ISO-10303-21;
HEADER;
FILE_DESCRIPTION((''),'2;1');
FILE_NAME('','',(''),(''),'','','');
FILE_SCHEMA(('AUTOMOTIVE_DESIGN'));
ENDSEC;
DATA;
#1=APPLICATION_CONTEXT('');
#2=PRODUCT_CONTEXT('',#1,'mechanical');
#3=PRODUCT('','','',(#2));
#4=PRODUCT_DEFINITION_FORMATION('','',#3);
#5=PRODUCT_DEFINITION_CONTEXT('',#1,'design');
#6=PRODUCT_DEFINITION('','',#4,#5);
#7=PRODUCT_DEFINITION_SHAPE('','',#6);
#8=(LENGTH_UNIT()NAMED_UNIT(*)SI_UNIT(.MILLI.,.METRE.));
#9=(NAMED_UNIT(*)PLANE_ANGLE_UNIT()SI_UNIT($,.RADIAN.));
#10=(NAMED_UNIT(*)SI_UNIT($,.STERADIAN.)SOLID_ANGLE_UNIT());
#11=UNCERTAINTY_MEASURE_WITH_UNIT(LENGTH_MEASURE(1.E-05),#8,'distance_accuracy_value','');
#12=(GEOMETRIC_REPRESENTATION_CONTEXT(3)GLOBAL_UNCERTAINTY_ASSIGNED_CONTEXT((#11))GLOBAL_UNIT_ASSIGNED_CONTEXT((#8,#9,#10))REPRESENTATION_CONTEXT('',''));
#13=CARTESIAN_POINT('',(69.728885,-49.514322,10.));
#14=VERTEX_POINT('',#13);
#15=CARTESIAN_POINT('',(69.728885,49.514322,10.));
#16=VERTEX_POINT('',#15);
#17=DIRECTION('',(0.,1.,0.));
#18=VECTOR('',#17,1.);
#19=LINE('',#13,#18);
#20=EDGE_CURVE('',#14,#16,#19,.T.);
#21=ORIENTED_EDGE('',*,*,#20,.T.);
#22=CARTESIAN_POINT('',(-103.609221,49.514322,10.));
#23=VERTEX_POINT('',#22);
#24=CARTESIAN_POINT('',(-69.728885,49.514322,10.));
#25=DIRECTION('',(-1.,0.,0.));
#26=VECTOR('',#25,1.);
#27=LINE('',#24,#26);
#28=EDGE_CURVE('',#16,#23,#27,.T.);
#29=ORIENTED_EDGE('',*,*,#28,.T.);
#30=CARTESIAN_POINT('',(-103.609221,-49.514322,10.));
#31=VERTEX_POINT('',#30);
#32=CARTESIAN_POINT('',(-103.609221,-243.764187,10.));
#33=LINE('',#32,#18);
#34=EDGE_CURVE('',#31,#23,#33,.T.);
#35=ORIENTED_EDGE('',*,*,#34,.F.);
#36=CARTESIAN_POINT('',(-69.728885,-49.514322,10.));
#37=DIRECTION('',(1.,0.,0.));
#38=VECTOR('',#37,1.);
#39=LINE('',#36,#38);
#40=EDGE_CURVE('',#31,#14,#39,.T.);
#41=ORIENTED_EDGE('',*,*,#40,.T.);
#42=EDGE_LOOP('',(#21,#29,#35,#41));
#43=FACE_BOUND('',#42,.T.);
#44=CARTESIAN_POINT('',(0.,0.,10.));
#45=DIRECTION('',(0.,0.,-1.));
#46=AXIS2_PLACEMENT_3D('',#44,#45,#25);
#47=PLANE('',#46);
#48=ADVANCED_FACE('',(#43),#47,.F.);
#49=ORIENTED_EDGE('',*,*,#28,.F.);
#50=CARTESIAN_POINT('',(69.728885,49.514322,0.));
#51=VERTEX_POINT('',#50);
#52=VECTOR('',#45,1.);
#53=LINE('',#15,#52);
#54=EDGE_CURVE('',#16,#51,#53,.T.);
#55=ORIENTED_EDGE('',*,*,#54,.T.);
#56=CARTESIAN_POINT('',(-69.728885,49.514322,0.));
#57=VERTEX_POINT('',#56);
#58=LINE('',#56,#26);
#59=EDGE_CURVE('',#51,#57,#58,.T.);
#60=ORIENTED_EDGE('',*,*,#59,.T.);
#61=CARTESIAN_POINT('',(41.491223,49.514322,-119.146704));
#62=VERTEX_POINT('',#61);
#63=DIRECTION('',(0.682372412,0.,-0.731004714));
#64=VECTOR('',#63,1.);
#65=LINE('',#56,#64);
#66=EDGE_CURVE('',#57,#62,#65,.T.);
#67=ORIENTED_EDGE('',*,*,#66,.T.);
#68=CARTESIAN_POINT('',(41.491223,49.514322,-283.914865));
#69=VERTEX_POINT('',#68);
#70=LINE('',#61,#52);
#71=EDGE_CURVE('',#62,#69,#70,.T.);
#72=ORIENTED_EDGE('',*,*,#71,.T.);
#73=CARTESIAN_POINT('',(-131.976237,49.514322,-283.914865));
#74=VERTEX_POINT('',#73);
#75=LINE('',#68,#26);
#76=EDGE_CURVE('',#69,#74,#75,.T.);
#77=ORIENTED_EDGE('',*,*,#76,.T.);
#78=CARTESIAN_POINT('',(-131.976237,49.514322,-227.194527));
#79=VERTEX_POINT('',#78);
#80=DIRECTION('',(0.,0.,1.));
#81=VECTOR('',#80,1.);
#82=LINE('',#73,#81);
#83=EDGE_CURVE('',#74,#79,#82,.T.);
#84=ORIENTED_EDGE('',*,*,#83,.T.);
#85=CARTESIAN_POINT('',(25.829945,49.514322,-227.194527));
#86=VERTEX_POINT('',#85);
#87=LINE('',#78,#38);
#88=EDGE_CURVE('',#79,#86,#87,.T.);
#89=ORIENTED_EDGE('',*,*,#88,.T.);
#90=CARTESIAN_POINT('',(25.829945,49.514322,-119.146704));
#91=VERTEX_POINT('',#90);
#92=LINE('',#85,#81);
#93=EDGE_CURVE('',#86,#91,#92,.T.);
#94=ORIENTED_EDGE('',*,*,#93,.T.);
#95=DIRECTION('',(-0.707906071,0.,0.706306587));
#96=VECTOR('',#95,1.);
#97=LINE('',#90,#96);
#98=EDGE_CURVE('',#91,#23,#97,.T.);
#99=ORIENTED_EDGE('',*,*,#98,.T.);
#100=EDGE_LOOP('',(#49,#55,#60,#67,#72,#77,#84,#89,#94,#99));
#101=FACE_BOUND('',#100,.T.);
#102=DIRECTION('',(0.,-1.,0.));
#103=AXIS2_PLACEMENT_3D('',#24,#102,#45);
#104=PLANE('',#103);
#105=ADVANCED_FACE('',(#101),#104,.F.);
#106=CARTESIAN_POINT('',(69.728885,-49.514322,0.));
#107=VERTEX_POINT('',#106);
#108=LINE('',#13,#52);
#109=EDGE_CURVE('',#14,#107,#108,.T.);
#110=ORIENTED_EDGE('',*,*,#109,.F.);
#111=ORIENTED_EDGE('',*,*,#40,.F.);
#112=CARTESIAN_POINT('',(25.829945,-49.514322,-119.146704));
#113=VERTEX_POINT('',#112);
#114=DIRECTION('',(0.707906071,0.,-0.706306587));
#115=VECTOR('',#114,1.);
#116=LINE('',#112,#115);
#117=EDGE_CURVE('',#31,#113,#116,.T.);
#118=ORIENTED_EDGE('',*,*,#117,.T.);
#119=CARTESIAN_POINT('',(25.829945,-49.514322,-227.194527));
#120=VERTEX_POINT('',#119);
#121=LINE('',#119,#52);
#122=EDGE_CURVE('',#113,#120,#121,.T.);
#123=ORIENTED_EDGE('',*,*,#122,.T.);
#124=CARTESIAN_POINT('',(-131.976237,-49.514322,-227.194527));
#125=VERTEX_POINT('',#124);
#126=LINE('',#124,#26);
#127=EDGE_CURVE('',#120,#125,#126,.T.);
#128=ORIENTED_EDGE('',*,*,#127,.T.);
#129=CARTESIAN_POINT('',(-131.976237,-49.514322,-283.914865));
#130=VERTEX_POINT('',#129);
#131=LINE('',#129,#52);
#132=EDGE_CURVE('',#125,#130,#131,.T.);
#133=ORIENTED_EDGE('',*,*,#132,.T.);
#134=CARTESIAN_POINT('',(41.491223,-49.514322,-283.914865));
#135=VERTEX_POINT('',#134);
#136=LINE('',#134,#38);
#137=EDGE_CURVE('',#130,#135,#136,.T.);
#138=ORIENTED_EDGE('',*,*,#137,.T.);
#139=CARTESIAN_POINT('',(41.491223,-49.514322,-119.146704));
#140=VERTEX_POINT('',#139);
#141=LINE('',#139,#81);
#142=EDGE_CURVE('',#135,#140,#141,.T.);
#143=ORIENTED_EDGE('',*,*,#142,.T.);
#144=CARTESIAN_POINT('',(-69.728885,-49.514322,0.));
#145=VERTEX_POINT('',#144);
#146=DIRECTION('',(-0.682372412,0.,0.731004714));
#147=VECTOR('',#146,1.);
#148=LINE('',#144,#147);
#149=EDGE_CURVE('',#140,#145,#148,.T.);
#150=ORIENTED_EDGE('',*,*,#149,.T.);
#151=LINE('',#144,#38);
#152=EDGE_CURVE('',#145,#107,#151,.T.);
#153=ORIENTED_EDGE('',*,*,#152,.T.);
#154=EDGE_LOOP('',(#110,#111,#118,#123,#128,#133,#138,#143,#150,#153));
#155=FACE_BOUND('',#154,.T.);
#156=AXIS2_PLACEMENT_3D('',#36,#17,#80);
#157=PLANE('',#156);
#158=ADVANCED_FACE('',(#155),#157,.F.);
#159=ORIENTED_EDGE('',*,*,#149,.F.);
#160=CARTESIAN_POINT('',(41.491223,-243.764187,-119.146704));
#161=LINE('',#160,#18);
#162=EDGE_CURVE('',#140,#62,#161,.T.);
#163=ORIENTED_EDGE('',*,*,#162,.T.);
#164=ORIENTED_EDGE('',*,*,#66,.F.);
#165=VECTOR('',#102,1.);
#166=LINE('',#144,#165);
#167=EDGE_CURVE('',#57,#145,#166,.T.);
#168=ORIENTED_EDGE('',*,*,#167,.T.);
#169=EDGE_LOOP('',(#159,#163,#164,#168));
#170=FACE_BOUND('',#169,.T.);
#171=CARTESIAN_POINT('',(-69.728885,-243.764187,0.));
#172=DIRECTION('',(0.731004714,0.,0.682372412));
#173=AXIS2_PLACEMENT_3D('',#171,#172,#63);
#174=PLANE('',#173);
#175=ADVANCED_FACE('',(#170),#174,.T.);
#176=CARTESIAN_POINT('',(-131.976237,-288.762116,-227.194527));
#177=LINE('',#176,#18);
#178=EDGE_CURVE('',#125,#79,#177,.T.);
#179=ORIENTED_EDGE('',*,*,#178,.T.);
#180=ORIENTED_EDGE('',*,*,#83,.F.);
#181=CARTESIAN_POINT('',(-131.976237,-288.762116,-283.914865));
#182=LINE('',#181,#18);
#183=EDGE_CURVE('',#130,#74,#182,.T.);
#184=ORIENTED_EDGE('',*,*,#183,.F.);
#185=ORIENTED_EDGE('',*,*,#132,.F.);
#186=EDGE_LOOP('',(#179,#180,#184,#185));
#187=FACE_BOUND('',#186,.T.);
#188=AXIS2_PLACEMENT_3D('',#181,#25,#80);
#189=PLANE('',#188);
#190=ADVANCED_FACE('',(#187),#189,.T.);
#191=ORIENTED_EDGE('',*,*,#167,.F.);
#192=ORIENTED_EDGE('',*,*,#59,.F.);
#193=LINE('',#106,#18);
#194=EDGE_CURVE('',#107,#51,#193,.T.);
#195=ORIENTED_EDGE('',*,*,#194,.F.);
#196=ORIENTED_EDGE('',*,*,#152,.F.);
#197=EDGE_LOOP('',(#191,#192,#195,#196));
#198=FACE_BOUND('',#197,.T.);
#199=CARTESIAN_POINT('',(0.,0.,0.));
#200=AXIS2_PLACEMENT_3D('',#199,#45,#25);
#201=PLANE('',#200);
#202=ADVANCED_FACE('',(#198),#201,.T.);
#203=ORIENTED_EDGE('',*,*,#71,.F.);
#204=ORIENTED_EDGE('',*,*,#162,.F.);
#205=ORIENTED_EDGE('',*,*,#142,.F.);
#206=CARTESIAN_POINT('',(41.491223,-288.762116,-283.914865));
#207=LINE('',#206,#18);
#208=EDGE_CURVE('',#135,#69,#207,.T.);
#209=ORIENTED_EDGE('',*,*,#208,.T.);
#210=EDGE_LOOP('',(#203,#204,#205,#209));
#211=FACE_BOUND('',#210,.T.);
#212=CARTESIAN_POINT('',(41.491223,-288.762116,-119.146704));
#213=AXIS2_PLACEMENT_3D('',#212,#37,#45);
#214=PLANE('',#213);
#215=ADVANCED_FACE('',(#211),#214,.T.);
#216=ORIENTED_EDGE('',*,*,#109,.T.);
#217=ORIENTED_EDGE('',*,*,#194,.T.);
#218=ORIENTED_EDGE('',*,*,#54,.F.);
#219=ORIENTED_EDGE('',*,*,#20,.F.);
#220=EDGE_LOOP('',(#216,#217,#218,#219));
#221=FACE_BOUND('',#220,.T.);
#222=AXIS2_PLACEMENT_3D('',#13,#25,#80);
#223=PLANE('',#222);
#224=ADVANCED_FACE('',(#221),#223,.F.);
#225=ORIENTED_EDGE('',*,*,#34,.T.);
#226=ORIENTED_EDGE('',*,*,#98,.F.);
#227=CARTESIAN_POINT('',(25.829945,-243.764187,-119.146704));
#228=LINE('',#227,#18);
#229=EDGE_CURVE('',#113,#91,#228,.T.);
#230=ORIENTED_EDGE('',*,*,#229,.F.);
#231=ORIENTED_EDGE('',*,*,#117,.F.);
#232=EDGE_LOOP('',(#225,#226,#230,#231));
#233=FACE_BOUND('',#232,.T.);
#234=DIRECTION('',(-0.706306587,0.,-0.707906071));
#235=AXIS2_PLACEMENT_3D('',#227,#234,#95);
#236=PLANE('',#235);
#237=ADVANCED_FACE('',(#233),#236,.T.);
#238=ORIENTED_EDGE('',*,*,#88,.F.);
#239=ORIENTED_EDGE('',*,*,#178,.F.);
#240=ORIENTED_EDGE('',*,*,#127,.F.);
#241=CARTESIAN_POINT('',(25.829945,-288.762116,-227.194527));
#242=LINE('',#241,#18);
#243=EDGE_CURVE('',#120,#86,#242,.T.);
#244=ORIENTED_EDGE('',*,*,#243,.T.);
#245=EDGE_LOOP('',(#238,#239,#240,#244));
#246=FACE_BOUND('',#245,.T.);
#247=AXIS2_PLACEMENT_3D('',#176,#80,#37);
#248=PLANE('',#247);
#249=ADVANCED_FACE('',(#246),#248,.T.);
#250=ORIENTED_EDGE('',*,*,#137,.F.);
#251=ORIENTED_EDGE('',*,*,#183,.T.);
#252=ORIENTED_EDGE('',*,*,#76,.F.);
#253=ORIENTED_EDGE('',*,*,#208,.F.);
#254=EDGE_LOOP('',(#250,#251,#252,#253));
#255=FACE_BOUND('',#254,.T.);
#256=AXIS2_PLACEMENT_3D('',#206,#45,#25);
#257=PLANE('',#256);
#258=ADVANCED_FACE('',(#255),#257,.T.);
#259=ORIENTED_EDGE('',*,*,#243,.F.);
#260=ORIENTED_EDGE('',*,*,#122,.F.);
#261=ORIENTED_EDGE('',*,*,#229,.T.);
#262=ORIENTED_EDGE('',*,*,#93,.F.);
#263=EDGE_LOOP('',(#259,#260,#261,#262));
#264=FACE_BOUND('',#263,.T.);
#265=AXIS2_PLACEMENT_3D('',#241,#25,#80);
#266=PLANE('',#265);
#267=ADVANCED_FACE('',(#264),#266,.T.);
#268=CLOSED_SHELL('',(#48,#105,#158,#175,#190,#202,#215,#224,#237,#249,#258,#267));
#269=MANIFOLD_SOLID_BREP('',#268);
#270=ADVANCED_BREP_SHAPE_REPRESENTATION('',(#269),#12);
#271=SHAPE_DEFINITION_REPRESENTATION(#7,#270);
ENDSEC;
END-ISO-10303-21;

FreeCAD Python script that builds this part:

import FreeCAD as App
import Part
import Sketcher

doc = App.newDocument("Part")
body = doc.addObject("PartDesign::Body", "Body")

# Sketch on XY plane
sketch1 = doc.addObject("Sketcher::SketchObject", "Sketch")
body.addObject(sketch1)
sketch1.AttachmentSupport = (doc.XY_Plane, [""])
sketch1.MapMode = "FlatFace"
sketch1.addGeometry([
    Part.LineSegment(App.Vector(-69.728885, 49.514322, 0), App.Vector(-69.728885, -49.514322, 0)),
    Part.LineSegment(App.Vector(-69.728885, -49.514322, 0), App.Vector(69.728885, -49.514322, 0)),
    Part.LineSegment(App.Vector(69.728885, -49.514322, 0), App.Vector(69.728885, 49.514322, 0)),
    Part.LineSegment(App.Vector(69.728885, 49.514322, 0), App.Vector(-69.728885, 49.514322, 0)),
], False)
sketch1.addConstraint([
    Sketcher.Constraint("Coincident", 0, 2, 1, 1),
    Sketcher.Constraint("Coincident", 1, 2, 2, 1),
    Sketcher.Constraint("Coincident", 2, 2, 3, 1),
    Sketcher.Constraint("Coincident", 3, 2, 0, 1),
    Sketcher.Constraint("Vertical", 0),
    Sketcher.Constraint("Horizontal", 1),
    Sketcher.Constraint("Vertical", 2),
    Sketcher.Constraint("Horizontal", 3),
    Sketcher.Constraint("Symmetric", 0, 2, 2, 2, -1, 1),
    Sketcher.Constraint("DistanceX", 1, 1, 1, 2, 139.45777),
    Sketcher.Constraint("DistanceY", 0, 2, 0, 1, 99.028644),
])
pad1 = doc.addObject("PartDesign::Pad", "Pad")
body.addObject(pad1)
pad1.Profile = sketch1
pad1.Length = 10

# Sketch on XZ plane
sketch2 = doc.addObject("Sketcher::SketchObject", "Sketch001")
body.addObject(sketch2)
sketch2.AttachmentSupport = (doc.XZ_Plane, [""])
sketch2.MapMode = "FlatFace"
sketch2.AttachmentOffset = App.Placement(App.Vector(0, 0, -49.514322), App.Rotation())
sketch2.addGeometry([
    Part.LineSegment(App.Vector(-69.728885, 0, 0), App.Vector(41.491223, -119.146704, 0)),  # 0
    Part.LineSegment(App.Vector(41.491223, -119.146704, 0), App.Vector(25.829945, -119.146704, 0)),  # 1
    Part.LineSegment(App.Vector(25.829945, -119.146704, 0), App.Vector(-103.609221, 10, 0)),  # 2
    Part.LineSegment(App.Vector(-103.609221, 10, 0), App.Vector(-69.728885, 10, 0)),  # 3
    Part.LineSegment(App.Vector(-69.728885, 10, 0), App.Vector(-69.728885, 0, 0)),  # 4
], False)
sketch2.addConstraint([
    Sketcher.Constraint("Coincident", 0, 2, 1, 1),
    Sketcher.Constraint("Coincident", 1, 2, 2, 1),
    Sketcher.Constraint("Coincident", 2, 2, 3, 1),
    Sketcher.Constraint("Coincident", 3, 2, 4, 1),
    Sketcher.Constraint("Coincident", 4, 2, 0, 1),
    Sketcher.Constraint("Horizontal", 1),
    Sketcher.Constraint("Horizontal", 3),
    Sketcher.Constraint("Vertical", 4),
    Sketcher.Constraint("PointOnObject", 4, 2, -1),
    Sketcher.Constraint("DistanceY", 4, 2, 4, 1, 10.0),
    Sketcher.Constraint("DistanceX", 1, 2, 1, 1, 15.661279),
    Sketcher.Constraint("Distance", 2, 182.847939),
    Sketcher.Constraint("DistanceX", 3, 1, 3, 2, 33.880336),
    Sketcher.Constraint("DistanceX", 2, 2, -1, 1, 103.609221),
    Sketcher.Constraint("DistanceX", 3, 2, 1, 2, 95.55883),
])
pad2 = doc.addObject("PartDesign::Pad", "Pad001")
body.addObject(pad2)
pad2.Profile = sketch2
pad2.Length = 99.028644

# Sketch on XZ plane
sketch3 = doc.addObject("Sketcher::SketchObject", "Sketch002")
body.addObject(sketch3)
sketch3.AttachmentSupport = (doc.XZ_Plane, [""])
sketch3.MapMode = "FlatFace"
sketch3.AttachmentOffset = App.Placement(App.Vector(0, 0, -49.514322), App.Rotation())
sketch3.addGeometry([
    Part.LineSegment(App.Vector(41.491223, -119.146704, 0), App.Vector(41.491223, -283.914865, 0)),  # 0
    Part.LineSegment(App.Vector(41.491223, -283.914865, 0), App.Vector(-131.976237, -283.914865, 0)),  # 1
    Part.LineSegment(App.Vector(-131.976237, -283.914865, 0), App.Vector(-131.976237, -227.194527, 0)),  # 2
    Part.LineSegment(App.Vector(-131.976237, -227.194527, 0), App.Vector(25.829945, -227.194527, 0)),  # 3
    Part.LineSegment(App.Vector(25.829945, -227.194527, 0), App.Vector(25.829945, -119.146704, 0)),  # 4
    Part.LineSegment(App.Vector(25.829945, -119.146704, 0), App.Vector(41.491223, -119.146704, 0)),  # 5
], False)
sketch3.addConstraint([
    Sketcher.Constraint("Coincident", 0, 2, 1, 1),
    Sketcher.Constraint("Coincident", 1, 2, 2, 1),
    Sketcher.Constraint("Coincident", 2, 2, 3, 1),
    Sketcher.Constraint("Coincident", 3, 2, 4, 1),
    Sketcher.Constraint("Coincident", 4, 2, 5, 1),
    Sketcher.Constraint("Coincident", 5, 2, 0, 1),
    Sketcher.Constraint("Vertical", 0),
    Sketcher.Constraint("Horizontal", 1),
    Sketcher.Constraint("Vertical", 2),
    Sketcher.Constraint("Horizontal", 3),
    Sketcher.Constraint("Vertical", 4),
    Sketcher.Constraint("Horizontal", 5),
    Sketcher.Constraint("DistanceX", 1, 2, 1, 1, 173.467461),
    Sketcher.Constraint("DistanceX", 3, 1, 3, 2, 157.806182),
    Sketcher.Constraint("DistanceY", 0, 2, 0, 1, 164.768161),
    Sketcher.Constraint("DistanceY", 2, 1, 2, 2, 56.720338),
    Sketcher.Constraint("DistanceX", -1, 1, 0, 2, 41.491223),
    Sketcher.Constraint("DistanceY", 0, 2, -1, 1, 283.914865),
])
pad3 = doc.addObject("PartDesign::Pad", "Pad002")
body.addObject(pad3)
pad3.Profile = sketch3
pad3.Length = 99.028644

doc.recompute()
